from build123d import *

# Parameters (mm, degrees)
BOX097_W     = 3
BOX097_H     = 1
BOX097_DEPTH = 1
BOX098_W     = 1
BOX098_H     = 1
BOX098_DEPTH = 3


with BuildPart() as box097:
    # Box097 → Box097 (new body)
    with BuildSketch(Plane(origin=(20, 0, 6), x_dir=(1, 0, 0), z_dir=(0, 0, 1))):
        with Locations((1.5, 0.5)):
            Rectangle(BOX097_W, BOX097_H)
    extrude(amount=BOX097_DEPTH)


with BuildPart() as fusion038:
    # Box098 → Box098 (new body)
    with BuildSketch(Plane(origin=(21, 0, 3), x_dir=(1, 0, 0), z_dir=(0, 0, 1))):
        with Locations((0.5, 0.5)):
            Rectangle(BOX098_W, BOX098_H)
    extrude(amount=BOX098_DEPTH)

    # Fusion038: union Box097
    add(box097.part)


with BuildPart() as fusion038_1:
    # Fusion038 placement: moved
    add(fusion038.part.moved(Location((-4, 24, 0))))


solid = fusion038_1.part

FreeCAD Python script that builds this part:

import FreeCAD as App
import Part
import Sketcher

doc = App.newDocument("Part")
body = doc.addObject("PartDesign::Body", "Body")

sketch1 = body.newObject("Sketcher::SketchObject", "Sketch")
sketch1.AttachmentSupport = (doc.getObject("XY_Plane"), [""])
sketch1.MapMode = "FlatFace"
sketch1.AttachmentOffset = App.Placement(App.Vector(0, 0, 6), App.Rotation())
sketch1.addGeometry([
    Part.LineSegment(App.Vector(20, 1, 0), App.Vector(20, 0, 0)),
    Part.LineSegment(App.Vector(20, 0, 0), App.Vector(23, 0, 0)),
    Part.LineSegment(App.Vector(23, 0, 0), App.Vector(23, 1, 0)),
    Part.LineSegment(App.Vector(23, 1, 0), App.Vector(20, 1, 0)),
], False)
sketch1.addConstraint([
    Sketcher.Constraint("Coincident", 0, 2, 1, 1),
    Sketcher.Constraint("Coincident", 1, 2, 2, 1),
    Sketcher.Constraint("Coincident", 2, 2, 3, 1),
    Sketcher.Constraint("Coincident", 3, 2, 0, 1),
    Sketcher.Constraint("Vertical", 0),
    Sketcher.Constraint("Horizontal", 1),
    Sketcher.Constraint("Vertical", 2),
    Sketcher.Constraint("Horizontal", 3),
    Sketcher.Constraint("PointOnObject", 0, 2, -1),
    Sketcher.Constraint("DistanceX", 1, 1, 1, 2, 3.0),
    Sketcher.Constraint("DistanceY", 0, 2, 0, 1, 1.0),
    Sketcher.Constraint("DistanceX", -1, 1, 0, 2, 20.0),
])
pad1 = body.newObject("PartDesign::Pad", "Pad")
pad1.Profile = sketch1
pad1.Length = 1
body2 = doc.addObject("PartDesign::Body", "Body001")

sketch2 = body2.newObject("Sketcher::SketchObject", "Sketch001")
sketch2.AttachmentSupport = (doc.getObject("XY_Plane001"), [""])
sketch2.MapMode = "FlatFace"
sketch2.AttachmentOffset = App.Placement(App.Vector(0, 0, 3), App.Rotation())
sketch2.addGeometry([
    Part.LineSegment(App.Vector(21, 1, 0), App.Vector(21, 0, 0)),
    Part.LineSegment(App.Vector(21, 0, 0), App.Vector(22, 0, 0)),
    Part.LineSegment(App.Vector(22, 0, 0), App.Vector(22, 1, 0)),
    Part.LineSegment(App.Vector(22, 1, 0), App.Vector(21, 1, 0)),
], False)
sketch2.addConstraint([
    Sketcher.Constraint("Coincident", 0, 2, 1, 1),
    Sketcher.Constraint("Coincident", 1, 2, 2, 1),
    Sketcher.Constraint("Coincident", 2, 2, 3, 1),
    Sketcher.Constraint("Coincident", 3, 2, 0, 1),
    Sketcher.Constraint("Vertical", 0),
    Sketcher.Constraint("Horizontal", 1),
    Sketcher.Constraint("Vertical", 2),
    Sketcher.Constraint("Horizontal", 3),
    Sketcher.Constraint("PointOnObject", 0, 2, -1),
    Sketcher.Constraint("Equal", 3, 0),
    Sketcher.Constraint("DistanceX", 1, 1, 1, 2, 1.0),
    Sketcher.Constraint("DistanceX", -1, 1, 0, 2, 21.0),
])
pad2 = body2.newObject("PartDesign::Pad", "Pad001")
pad2.Profile = sketch2
pad2.Length = 3
doc.recompute()

boolean = body2.newObject("PartDesign::Boolean", "Boolean")
boolean.Type = "Fuse"
boolean.addObjects([body])
body3 = doc.addObject("PartDesign::Body", "Body002")
doc.recompute()

body2.Placement = App.Placement(App.Vector(-4, 24, 0), App.Rotation(App.Vector(0, 0, 1), 0))
boolean2 = body3.newObject("PartDesign::Boolean", "Boolean001")
boolean2.Type = "Fuse"
boolean2.addObjects([body2])

doc.recompute()
